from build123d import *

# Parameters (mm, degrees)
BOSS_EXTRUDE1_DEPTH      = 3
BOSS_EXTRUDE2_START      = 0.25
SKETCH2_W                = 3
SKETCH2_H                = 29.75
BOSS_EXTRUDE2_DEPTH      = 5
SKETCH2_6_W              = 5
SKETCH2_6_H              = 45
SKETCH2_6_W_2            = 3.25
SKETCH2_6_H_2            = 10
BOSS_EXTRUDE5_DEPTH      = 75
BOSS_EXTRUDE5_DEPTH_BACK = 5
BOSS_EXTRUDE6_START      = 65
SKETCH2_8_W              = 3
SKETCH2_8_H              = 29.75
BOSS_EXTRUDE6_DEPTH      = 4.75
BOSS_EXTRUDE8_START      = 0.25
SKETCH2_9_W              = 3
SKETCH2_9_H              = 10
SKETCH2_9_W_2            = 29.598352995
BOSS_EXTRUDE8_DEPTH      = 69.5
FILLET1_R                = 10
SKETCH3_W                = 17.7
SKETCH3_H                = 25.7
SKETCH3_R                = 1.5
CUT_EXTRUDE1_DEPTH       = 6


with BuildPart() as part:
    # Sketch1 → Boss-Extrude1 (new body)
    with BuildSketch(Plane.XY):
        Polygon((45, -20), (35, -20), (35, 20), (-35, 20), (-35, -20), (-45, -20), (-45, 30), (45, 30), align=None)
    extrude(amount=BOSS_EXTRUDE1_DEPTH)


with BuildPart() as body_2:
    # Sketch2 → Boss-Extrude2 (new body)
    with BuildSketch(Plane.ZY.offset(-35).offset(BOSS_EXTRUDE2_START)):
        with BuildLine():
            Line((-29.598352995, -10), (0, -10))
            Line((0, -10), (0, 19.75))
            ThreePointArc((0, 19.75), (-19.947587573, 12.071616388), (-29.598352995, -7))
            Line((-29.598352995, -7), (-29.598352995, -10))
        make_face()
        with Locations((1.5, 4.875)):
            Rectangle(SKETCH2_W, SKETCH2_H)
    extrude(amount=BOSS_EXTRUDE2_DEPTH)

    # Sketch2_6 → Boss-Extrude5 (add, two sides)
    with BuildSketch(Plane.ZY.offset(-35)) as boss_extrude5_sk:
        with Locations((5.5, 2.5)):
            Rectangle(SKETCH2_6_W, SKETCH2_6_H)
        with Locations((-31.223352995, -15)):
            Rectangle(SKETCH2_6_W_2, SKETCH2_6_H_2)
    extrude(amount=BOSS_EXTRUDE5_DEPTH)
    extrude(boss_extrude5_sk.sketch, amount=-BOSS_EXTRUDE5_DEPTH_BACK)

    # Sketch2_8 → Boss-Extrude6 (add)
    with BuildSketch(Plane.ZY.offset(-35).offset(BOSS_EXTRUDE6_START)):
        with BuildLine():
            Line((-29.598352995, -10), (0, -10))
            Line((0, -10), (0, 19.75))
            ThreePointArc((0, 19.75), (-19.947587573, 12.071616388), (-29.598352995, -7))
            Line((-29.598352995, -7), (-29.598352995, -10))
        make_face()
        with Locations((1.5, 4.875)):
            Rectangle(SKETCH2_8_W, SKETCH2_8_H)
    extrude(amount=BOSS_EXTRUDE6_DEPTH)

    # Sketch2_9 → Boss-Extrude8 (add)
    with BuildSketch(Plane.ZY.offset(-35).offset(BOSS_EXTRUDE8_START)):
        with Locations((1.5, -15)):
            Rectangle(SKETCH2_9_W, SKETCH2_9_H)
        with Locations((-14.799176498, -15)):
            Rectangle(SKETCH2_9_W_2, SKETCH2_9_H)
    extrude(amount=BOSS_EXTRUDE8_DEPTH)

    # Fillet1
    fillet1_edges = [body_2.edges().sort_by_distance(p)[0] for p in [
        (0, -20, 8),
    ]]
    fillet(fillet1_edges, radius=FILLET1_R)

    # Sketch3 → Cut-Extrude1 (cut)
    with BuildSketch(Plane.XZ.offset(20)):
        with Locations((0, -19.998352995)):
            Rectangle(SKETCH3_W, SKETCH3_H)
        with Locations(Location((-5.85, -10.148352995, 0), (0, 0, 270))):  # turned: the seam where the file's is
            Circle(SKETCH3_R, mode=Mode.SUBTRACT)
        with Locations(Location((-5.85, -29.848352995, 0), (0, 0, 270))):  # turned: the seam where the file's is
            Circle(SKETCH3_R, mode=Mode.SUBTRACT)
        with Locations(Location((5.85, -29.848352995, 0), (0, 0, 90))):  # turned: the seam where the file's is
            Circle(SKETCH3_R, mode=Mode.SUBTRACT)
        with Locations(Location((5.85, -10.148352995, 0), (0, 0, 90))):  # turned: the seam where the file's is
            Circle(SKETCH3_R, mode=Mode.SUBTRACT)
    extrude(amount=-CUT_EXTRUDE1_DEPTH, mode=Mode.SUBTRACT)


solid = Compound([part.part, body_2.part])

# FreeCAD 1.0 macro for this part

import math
import FreeCAD as App
import Part
import Sketcher

V = App.Vector
Q = App.Units.Quantity


def edges_at(feature, points):
    """Names of the edges that pass closest to the given points."""
    edges = feature.Shape.Edges
    near = lambda p: min(range(len(edges)), key=lambda i: edges[i].distToShape(Part.Vertex(*p))[0])
    return sorted({f"Edge{near(p) + 1}" for p in points})

doc = App.newDocument("Part")
body = doc.addObject("PartDesign::Body", "Body")

# Sketch on XY plane
sketch1 = doc.addObject("Sketcher::SketchObject", "Sketch")
body.addObject(sketch1)
sketch1.AttachmentSupport = (doc.XY_Plane, [""])
sketch1.MapMode = "FlatFace"
sketch1.addGeometry(Part.LineSegment(V(35, -20, 0), V(45, -20, 0)), False)
sketch1.addGeometry(Part.LineSegment(V(45, -20, 0), V(45, 30, 0)), False)
sketch1.addGeometry(Part.LineSegment(V(45, 30, 0), V(-45, 30, 0)), False)
sketch1.addGeometry(Part.LineSegment(V(-45, 30, 0), V(-45, -20, 0)), False)
sketch1.addGeometry(Part.LineSegment(V(-45, -20, 0), V(-35, -20, 0)), False)
sketch1.addGeometry(Part.LineSegment(V(-35, -20, 0), V(-35, 20, 0)), False)
sketch1.addGeometry(Part.LineSegment(V(-35, 20, 0), V(35, 20, 0)), False)
sketch1.addGeometry(Part.LineSegment(V(35, 20, 0), V(35, -20, 0)), False)
sketch1.addConstraint(Sketcher.Constraint("Coincident", 0, 2, 1, 1))
sketch1.addConstraint(Sketcher.Constraint("Coincident", 1, 2, 2, 1))
sketch1.addConstraint(Sketcher.Constraint("Coincident", 2, 2, 3, 1))
sketch1.addConstraint(Sketcher.Constraint("Coincident", 3, 2, 4, 1))
sketch1.addConstraint(Sketcher.Constraint("Coincident", 4, 2, 5, 1))
sketch1.addConstraint(Sketcher.Constraint("Coincident", 5, 2, 6, 1))
sketch1.addConstraint(Sketcher.Constraint("Coincident", 6, 2, 7, 1))
sketch1.addConstraint(Sketcher.Constraint("Coincident", 7, 2, 0, 1))
sketch1.addConstraint(Sketcher.Constraint("Horizontal", 0))
sketch1.addConstraint(Sketcher.Constraint("Vertical", 1))
sketch1.addConstraint(Sketcher.Constraint("Horizontal", 2))
sketch1.addConstraint(Sketcher.Constraint("Vertical", 3))
sketch1.addConstraint(Sketcher.Constraint("Horizontal", 4))
sketch1.addConstraint(Sketcher.Constraint("Vertical", 5))
sketch1.addConstraint(Sketcher.Constraint("Horizontal", 6))
sketch1.addConstraint(Sketcher.Constraint("Vertical", 7))
sketch1.addConstraint(Sketcher.Constraint("Symmetric", 4, 2, 6, 2, -1, 1))
sketch1.addConstraint(Sketcher.Constraint("Symmetric", 0, 2, 3, 2, -2))
sketch1.addConstraint(Sketcher.Constraint("DistanceX", 0, 1, 0, 2, Q("10 mm")))
sketch1.addConstraint(Sketcher.Constraint("DistanceX", 2, 2, 2, 1, Q("90 mm")))
sketch1.addConstraint(Sketcher.Constraint("DistanceY", 1, 1, 1, 2, Q("50 mm")))
sketch1.addConstraint(Sketcher.Constraint("DistanceY", 5, 1, 5, 2, Q("40 mm")))
pad1 = doc.addObject("PartDesign::Pad", "Pad")
body.addObject(pad1)
pad1.Profile = sketch1
pad1.Length = 3
body2 = doc.addObject("PartDesign::Body", "Body001")
body2.AllowCompound = True

# Sketch on YZ plane
sketch2 = doc.addObject("Sketcher::SketchObject", "Sketch001")
body2.addObject(sketch2)
sketch2.AttachmentSupport = (doc.getObject("YZ_Plane001"), [""])
sketch2.MapMode = "FlatFace"
sketch2.AttachmentOffset = App.Placement(V(0, 0, 34.75), App.Rotation())
sketch2.addGeometry(Part.LineSegment(V(-10, -29.598353, 0), V(-10, 3, 0)), False)
sketch2.addGeometry(Part.LineSegment(V(-10, 3, 0), V(19.75, 3, 0)), False)
sketch2.addGeometry(Part.LineSegment(V(19.75, 3, 0), V(19.75, 0, 0)), False)
sketch2.addGeometry(Part.ArcOfCircle(Part.Circle(V(-10, 0, 0), V(0, 0, 1), 29.75), math.radians(-84.212437), math.radians(0)), False)
sketch2.addGeometry(Part.LineSegment(V(-7, -29.598353, 0), V(-10, -29.598353, 0)), False)
sketch2.addConstraint(Sketcher.Constraint("Coincident", 0, 2, 1, 1))
sketch2.addConstraint(Sketcher.Constraint("Coincident", 1, 2, 2, 1))
sketch2.addConstraint(Sketcher.Constraint("Tangent", 2, 2, 3, 2))
sketch2.addConstraint(Sketcher.Constraint("Coincident", 3, 1, 4, 1))
sketch2.addConstraint(Sketcher.Constraint("Coincident", 4, 2, 0, 1))
sketch2.addConstraint(Sketcher.Constraint("Vertical", 0))
sketch2.addConstraint(Sketcher.Constraint("Horizontal", 1))
sketch2.addConstraint(Sketcher.Constraint("Vertical", 2))
sketch2.addConstraint(Sketcher.Constraint("Horizontal", 4))
sketch2.addConstraint(Sketcher.Constraint("PointOnObject", 3, 3, -1))
sketch2.addConstraint(Sketcher.Constraint("Vertical", 3, 3, 0, 2))
sketch2.addConstraint(Sketcher.Constraint("Equal", 4, 2))
sketch2.addConstraint(Sketcher.Constraint("DistanceX", 4, 2, 4, 1, Q("3 mm")))
sketch2.addConstraint(Sketcher.Constraint("Radius", 3, Q("29.75 mm")))
sketch2.addConstraint(Sketcher.Constraint("DistanceX", 3, 3, -1, 1, Q("10 mm")))
pad2 = doc.addObject("PartDesign::Pad", "Pad001")
body2.addObject(pad2)
pad2.Profile = sketch2
pad2.Length = 5
pad2.Reversed = True

# Sketch on YZ plane
sketch3 = doc.addObject("Sketcher::SketchObject", "Sketch002")
body2.addObject(sketch3)
sketch3.AttachmentSupport = (doc.getObject("YZ_Plane001"), [""])
sketch3.MapMode = "FlatFace"
sketch3.AttachmentOffset = App.Placement(V(0, 0, 35), App.Rotation())
sketch3.addGeometry(Part.LineSegment(V(25, 3, 0), V(-20, 3, 0)), False)
sketch3.addGeometry(Part.LineSegment(V(-20, 3, 0), V(-20, 8, 0)), False)
sketch3.addGeometry(Part.LineSegment(V(-20, 8, 0), V(25, 8, 0)), False)
sketch3.addGeometry(Part.LineSegment(V(25, 8, 0), V(25, 3, 0)), False)
sketch3.addGeometry(Part.LineSegment(V(-10, -32.848353, 0), V(-20, -32.848353, 0)), False)
sketch3.addGeometry(Part.LineSegment(V(-20, -32.848353, 0), V(-20, -29.598353, 0)), False)
sketch3.addGeometry(Part.LineSegment(V(-20, -29.598353, 0), V(-10, -29.598353, 0)), False)
sketch3.addGeometry(Part.LineSegment(V(-10, -29.598353, 0), V(-10, -32.848353, 0)), False)
sketch3.addConstraint(Sketcher.Constraint("Coincident", 0, 2, 1, 1))
sketch3.addConstraint(Sketcher.Constraint("Coincident", 1, 2, 2, 1))
sketch3.addConstraint(Sketcher.Constraint("Coincident", 2, 2, 3, 1))
sketch3.addConstraint(Sketcher.Constraint("Coincident", 3, 2, 0, 1))
sketch3.addConstraint(Sketcher.Constraint("Coincident", 4, 2, 5, 1))
sketch3.addConstraint(Sketcher.Constraint("Coincident", 5, 2, 6, 1))
sketch3.addConstraint(Sketcher.Constraint("Coincident", 6, 2, 7, 1))
sketch3.addConstraint(Sketcher.Constraint("Coincident", 7, 2, 4, 1))
sketch3.addConstraint(Sketcher.Constraint("Horizontal", 0))
sketch3.addConstraint(Sketcher.Constraint("Vertical", 1))
sketch3.addConstraint(Sketcher.Constraint("Horizontal", 2))
sketch3.addConstraint(Sketcher.Constraint("Vertical", 3))
sketch3.addConstraint(Sketcher.Constraint("Horizontal", 4))
sketch3.addConstraint(Sketcher.Constraint("Vertical", 5))
sketch3.addConstraint(Sketcher.Constraint("Horizontal", 6))
sketch3.addConstraint(Sketcher.Constraint("Vertical", 7))
sketch3.addConstraint(Sketcher.Constraint("Vertical", 1, 2, 4, 2))
sketch3.addConstraint(Sketcher.Constraint("DistanceX", 0, 2, 0, 1, Q("45 mm")))
sketch3.addConstraint(Sketcher.Constraint("DistanceX", 4, 2, 4, 1, Q("10 mm")))
sketch3.addConstraint(Sketcher.Constraint("DistanceY", 1, 1, 1, 2, Q("5 mm")))
sketch3.addConstraint(Sketcher.Constraint("DistanceX", 0, 2, -1, 1, Q("20 mm")))
sketch3.addConstraint(Sketcher.Constraint("DistanceY", -1, 1, 0, 2, Q("3 mm")))
sketch3.addConstraint(Sketcher.Constraint("DistanceY", 5, 1, 5, 2, Q("3.25 mm")))
sketch3.addConstraint(Sketcher.Constraint("DistanceY", 4, 2, -1, 1, Q("32.848353 mm")))
pad3 = doc.addObject("PartDesign::Pad", "Pad002")
body2.addObject(pad3)
pad3.Profile = sketch3
pad3.Type = "TwoLengths"
pad3.Length = 75
pad3.Length2 = 5
pad3.Reversed = True

# Sketch on YZ plane
sketch4 = doc.addObject("Sketcher::SketchObject", "Sketch003")
body2.addObject(sketch4)
sketch4.AttachmentSupport = (doc.getObject("YZ_Plane001"), [""])
sketch4.MapMode = "FlatFace"
sketch4.AttachmentOffset = App.Placement(V(0, 0, -30), App.Rotation())
sketch4.addGeometry(Part.LineSegment(V(-10, -29.598353, 0), V(-10, 3, 0)), False)
sketch4.addGeometry(Part.LineSegment(V(-10, 3, 0), V(19.75, 3, 0)), False)
sketch4.addGeometry(Part.LineSegment(V(19.75, 3, 0), V(19.75, 0, 0)), False)
sketch4.addGeometry(Part.ArcOfCircle(Part.Circle(V(-10, 0, 0), V(0, 0, 1), 29.75), math.radians(-84.212437), math.radians(0)), False)
sketch4.addGeometry(Part.LineSegment(V(-7, -29.598353, 0), V(-10, -29.598353, 0)), False)
sketch4.addConstraint(Sketcher.Constraint("Coincident", 0, 2, 1, 1))
sketch4.addConstraint(Sketcher.Constraint("Coincident", 1, 2, 2, 1))
sketch4.addConstraint(Sketcher.Constraint("Tangent", 2, 2, 3, 2))
sketch4.addConstraint(Sketcher.Constraint("Coincident", 3, 1, 4, 1))
sketch4.addConstraint(Sketcher.Constraint("Coincident", 4, 2, 0, 1))
sketch4.addConstraint(Sketcher.Constraint("Vertical", 0))
sketch4.addConstraint(Sketcher.Constraint("Horizontal", 1))
sketch4.addConstraint(Sketcher.Constraint("Vertical", 2))
sketch4.addConstraint(Sketcher.Constraint("Horizontal", 4))
sketch4.addConstraint(Sketcher.Constraint("PointOnObject", 3, 3, -1))
sketch4.addConstraint(Sketcher.Constraint("Vertical", 3, 3, 0, 2))
sketch4.addConstraint(Sketcher.Constraint("Equal", 4, 2))
sketch4.addConstraint(Sketcher.Constraint("DistanceX", 4, 2, 4, 1, Q("3 mm")))
sketch4.addConstraint(Sketcher.Constraint("Radius", 3, Q("29.75 mm")))
sketch4.addConstraint(Sketcher.Constraint("DistanceX", 3, 3, -1, 1, Q("10 mm")))
pad4 = doc.addObject("PartDesign::Pad", "Pad003")
body2.addObject(pad4)
pad4.Profile = sketch4
pad4.Length = 4.75
pad4.Reversed = True

# Sketch on YZ plane
sketch5 = doc.addObject("Sketcher::SketchObject", "Sketch004")
body2.addObject(sketch5)
sketch5.AttachmentSupport = (doc.getObject("YZ_Plane001"), [""])
sketch5.MapMode = "FlatFace"
sketch5.AttachmentOffset = App.Placement(V(0, 0, 34.75), App.Rotation())
sketch5.addGeometry(Part.LineSegment(V(-20, 3, 0), V(-10, 3, 0)), False)
sketch5.addGeometry(Part.LineSegment(V(-10, 3, 0), V(-10, -29.598353, 0)), False)
sketch5.addGeometry(Part.LineSegment(V(-10, -29.598353, 0), V(-20, -29.598353, 0)), False)
sketch5.addGeometry(Part.LineSegment(V(-20, -29.598353, 0), V(-20, 3, 0)), False)
sketch5.addConstraint(Sketcher.Constraint("Coincident", 0, 2, 1, 1))
sketch5.addConstraint(Sketcher.Constraint("Coincident", 1, 2, 2, 1))
sketch5.addConstraint(Sketcher.Constraint("Coincident", 2, 2, 3, 1))
sketch5.addConstraint(Sketcher.Constraint("Coincident", 3, 2, 0, 1))
sketch5.addConstraint(Sketcher.Constraint("Horizontal", 0))
sketch5.addConstraint(Sketcher.Constraint("Vertical", 1))
sketch5.addConstraint(Sketcher.Constraint("Horizontal", 2))
sketch5.addConstraint(Sketcher.Constraint("Vertical", 3))
sketch5.addConstraint(Sketcher.Constraint("DistanceX", 0, 1, 0, 2, Q("10 mm")))
sketch5.addConstraint(Sketcher.Constraint("DistanceX", 0, 2, -1, 1, Q("10 mm")))
sketch5.addConstraint(Sketcher.Constraint("DistanceY", -1, 1, 0, 2, Q("3 mm")))
sketch5.addConstraint(Sketcher.Constraint("DistanceY", 1, 2, 1, 1, Q("32.598353 mm")))
pad5 = doc.addObject("PartDesign::Pad", "Pad004")
body2.addObject(pad5)
pad5.Profile = sketch5
pad5.Length = 69.5
pad5.Reversed = True
doc.recompute()

fillet = doc.addObject("PartDesign::Fillet", "Fillet")
body2.addObject(fillet)
fillet.Base = (pad5, edges_at(pad5, [(0, -20, 8)]))
fillet.Radius = 10

# Sketch on XZ plane
sketch6 = doc.addObject("Sketcher::SketchObject", "Sketch005")
body2.addObject(sketch6)
sketch6.AttachmentSupport = (doc.getObject("XZ_Plane001"), [""])
sketch6.MapMode = "FlatFace"
sketch6.AttachmentOffset = App.Placement(V(0, 0, 20), App.Rotation())
sketch6.addGeometry(Part.LineSegment(V(-8.85, -7.148353, 0), V(-8.85, -32.848353, 0)), False)
sketch6.addGeometry(Part.LineSegment(V(-8.85, -32.848353, 0), V(8.85, -32.848353, 0)), False)
sketch6.addGeometry(Part.LineSegment(V(8.85, -32.848353, 0), V(8.85, -7.148353, 0)), False)
sketch6.addGeometry(Part.LineSegment(V(8.85, -7.148353, 0), V(-8.85, -7.148353, 0)), False)
sketch6.addGeometry(Part.Circle(V(-5.85, -29.848353, 0), V(0, 0, 1), 1.5), False)
sketch6.addGeometry(Part.Circle(V(5.85, -29.848353, 0), V(0, 0, 1), 1.5), False)
sketch6.addGeometry(Part.Circle(V(-5.85, -10.148353, 0), V(0, 0, 1), 1.5), False)
sketch6.addGeometry(Part.Circle(V(5.85, -10.148353, 0), V(0, 0, 1), 1.5), False)
sketch6.addConstraint(Sketcher.Constraint("Coincident", 0, 2, 1, 1))
sketch6.addConstraint(Sketcher.Constraint("Coincident", 1, 2, 2, 1))
sketch6.addConstraint(Sketcher.Constraint("Coincident", 2, 2, 3, 1))
sketch6.addConstraint(Sketcher.Constraint("Coincident", 3, 2, 0, 1))
sketch6.addConstraint(Sketcher.Constraint("Vertical", 0))
sketch6.addConstraint(Sketcher.Constraint("Horizontal", 1))
sketch6.addConstraint(Sketcher.Constraint("Vertical", 2))
sketch6.addConstraint(Sketcher.Constraint("Horizontal", 3))
sketch6.addConstraint(Sketcher.Constraint("Equal", 4, 5))
sketch6.addConstraint(Sketcher.Constraint("Equal", 5, 6))
sketch6.addConstraint(Sketcher.Constraint("Equal", 6, 7))
sketch6.addConstraint(Sketcher.Constraint("Symmetric", 4, 3, 5, 3, -2))
sketch6.addConstraint(Sketcher.Constraint("Symmetric", 6, 3, 7, 3, -2))
sketch6.addConstraint(Sketcher.Constraint("Vertical", 4, 3, 6, 3))
sketch6.addConstraint(Sketcher.Constraint("Diameter", 4, Q("3 mm")))
sketch6.addConstraint(Sketcher.Constraint("DistanceX", 1, 1, 1, 2, Q("17.7 mm")))
sketch6.addConstraint(Sketcher.Constraint("DistanceY", 0, 2, 0, 1, Q("25.7 mm")))
sketch6.addConstraint(Sketcher.Constraint("DistanceX", 0, 2, 4, 3, Q("3 mm")))
sketch6.addConstraint(Sketcher.Constraint("DistanceY", 0, 2, 4, 3, Q("3 mm")))
sketch6.addConstraint(Sketcher.Constraint("DistanceX", 5, 3, 1, 2, Q("3 mm")))
sketch6.addConstraint(Sketcher.Constraint("DistanceY", 7, 3, 2, 2, Q("3 mm")))
sketch6.addConstraint(Sketcher.Constraint("DistanceY", 4, 3, -1, 1, Q("29.848353 mm")))
pocket1 = doc.addObject("PartDesign::Pocket", "Pocket")
body2.addObject(pocket1)
pocket1.Profile = sketch6
pocket1.Length = 6

doc.recompute()
